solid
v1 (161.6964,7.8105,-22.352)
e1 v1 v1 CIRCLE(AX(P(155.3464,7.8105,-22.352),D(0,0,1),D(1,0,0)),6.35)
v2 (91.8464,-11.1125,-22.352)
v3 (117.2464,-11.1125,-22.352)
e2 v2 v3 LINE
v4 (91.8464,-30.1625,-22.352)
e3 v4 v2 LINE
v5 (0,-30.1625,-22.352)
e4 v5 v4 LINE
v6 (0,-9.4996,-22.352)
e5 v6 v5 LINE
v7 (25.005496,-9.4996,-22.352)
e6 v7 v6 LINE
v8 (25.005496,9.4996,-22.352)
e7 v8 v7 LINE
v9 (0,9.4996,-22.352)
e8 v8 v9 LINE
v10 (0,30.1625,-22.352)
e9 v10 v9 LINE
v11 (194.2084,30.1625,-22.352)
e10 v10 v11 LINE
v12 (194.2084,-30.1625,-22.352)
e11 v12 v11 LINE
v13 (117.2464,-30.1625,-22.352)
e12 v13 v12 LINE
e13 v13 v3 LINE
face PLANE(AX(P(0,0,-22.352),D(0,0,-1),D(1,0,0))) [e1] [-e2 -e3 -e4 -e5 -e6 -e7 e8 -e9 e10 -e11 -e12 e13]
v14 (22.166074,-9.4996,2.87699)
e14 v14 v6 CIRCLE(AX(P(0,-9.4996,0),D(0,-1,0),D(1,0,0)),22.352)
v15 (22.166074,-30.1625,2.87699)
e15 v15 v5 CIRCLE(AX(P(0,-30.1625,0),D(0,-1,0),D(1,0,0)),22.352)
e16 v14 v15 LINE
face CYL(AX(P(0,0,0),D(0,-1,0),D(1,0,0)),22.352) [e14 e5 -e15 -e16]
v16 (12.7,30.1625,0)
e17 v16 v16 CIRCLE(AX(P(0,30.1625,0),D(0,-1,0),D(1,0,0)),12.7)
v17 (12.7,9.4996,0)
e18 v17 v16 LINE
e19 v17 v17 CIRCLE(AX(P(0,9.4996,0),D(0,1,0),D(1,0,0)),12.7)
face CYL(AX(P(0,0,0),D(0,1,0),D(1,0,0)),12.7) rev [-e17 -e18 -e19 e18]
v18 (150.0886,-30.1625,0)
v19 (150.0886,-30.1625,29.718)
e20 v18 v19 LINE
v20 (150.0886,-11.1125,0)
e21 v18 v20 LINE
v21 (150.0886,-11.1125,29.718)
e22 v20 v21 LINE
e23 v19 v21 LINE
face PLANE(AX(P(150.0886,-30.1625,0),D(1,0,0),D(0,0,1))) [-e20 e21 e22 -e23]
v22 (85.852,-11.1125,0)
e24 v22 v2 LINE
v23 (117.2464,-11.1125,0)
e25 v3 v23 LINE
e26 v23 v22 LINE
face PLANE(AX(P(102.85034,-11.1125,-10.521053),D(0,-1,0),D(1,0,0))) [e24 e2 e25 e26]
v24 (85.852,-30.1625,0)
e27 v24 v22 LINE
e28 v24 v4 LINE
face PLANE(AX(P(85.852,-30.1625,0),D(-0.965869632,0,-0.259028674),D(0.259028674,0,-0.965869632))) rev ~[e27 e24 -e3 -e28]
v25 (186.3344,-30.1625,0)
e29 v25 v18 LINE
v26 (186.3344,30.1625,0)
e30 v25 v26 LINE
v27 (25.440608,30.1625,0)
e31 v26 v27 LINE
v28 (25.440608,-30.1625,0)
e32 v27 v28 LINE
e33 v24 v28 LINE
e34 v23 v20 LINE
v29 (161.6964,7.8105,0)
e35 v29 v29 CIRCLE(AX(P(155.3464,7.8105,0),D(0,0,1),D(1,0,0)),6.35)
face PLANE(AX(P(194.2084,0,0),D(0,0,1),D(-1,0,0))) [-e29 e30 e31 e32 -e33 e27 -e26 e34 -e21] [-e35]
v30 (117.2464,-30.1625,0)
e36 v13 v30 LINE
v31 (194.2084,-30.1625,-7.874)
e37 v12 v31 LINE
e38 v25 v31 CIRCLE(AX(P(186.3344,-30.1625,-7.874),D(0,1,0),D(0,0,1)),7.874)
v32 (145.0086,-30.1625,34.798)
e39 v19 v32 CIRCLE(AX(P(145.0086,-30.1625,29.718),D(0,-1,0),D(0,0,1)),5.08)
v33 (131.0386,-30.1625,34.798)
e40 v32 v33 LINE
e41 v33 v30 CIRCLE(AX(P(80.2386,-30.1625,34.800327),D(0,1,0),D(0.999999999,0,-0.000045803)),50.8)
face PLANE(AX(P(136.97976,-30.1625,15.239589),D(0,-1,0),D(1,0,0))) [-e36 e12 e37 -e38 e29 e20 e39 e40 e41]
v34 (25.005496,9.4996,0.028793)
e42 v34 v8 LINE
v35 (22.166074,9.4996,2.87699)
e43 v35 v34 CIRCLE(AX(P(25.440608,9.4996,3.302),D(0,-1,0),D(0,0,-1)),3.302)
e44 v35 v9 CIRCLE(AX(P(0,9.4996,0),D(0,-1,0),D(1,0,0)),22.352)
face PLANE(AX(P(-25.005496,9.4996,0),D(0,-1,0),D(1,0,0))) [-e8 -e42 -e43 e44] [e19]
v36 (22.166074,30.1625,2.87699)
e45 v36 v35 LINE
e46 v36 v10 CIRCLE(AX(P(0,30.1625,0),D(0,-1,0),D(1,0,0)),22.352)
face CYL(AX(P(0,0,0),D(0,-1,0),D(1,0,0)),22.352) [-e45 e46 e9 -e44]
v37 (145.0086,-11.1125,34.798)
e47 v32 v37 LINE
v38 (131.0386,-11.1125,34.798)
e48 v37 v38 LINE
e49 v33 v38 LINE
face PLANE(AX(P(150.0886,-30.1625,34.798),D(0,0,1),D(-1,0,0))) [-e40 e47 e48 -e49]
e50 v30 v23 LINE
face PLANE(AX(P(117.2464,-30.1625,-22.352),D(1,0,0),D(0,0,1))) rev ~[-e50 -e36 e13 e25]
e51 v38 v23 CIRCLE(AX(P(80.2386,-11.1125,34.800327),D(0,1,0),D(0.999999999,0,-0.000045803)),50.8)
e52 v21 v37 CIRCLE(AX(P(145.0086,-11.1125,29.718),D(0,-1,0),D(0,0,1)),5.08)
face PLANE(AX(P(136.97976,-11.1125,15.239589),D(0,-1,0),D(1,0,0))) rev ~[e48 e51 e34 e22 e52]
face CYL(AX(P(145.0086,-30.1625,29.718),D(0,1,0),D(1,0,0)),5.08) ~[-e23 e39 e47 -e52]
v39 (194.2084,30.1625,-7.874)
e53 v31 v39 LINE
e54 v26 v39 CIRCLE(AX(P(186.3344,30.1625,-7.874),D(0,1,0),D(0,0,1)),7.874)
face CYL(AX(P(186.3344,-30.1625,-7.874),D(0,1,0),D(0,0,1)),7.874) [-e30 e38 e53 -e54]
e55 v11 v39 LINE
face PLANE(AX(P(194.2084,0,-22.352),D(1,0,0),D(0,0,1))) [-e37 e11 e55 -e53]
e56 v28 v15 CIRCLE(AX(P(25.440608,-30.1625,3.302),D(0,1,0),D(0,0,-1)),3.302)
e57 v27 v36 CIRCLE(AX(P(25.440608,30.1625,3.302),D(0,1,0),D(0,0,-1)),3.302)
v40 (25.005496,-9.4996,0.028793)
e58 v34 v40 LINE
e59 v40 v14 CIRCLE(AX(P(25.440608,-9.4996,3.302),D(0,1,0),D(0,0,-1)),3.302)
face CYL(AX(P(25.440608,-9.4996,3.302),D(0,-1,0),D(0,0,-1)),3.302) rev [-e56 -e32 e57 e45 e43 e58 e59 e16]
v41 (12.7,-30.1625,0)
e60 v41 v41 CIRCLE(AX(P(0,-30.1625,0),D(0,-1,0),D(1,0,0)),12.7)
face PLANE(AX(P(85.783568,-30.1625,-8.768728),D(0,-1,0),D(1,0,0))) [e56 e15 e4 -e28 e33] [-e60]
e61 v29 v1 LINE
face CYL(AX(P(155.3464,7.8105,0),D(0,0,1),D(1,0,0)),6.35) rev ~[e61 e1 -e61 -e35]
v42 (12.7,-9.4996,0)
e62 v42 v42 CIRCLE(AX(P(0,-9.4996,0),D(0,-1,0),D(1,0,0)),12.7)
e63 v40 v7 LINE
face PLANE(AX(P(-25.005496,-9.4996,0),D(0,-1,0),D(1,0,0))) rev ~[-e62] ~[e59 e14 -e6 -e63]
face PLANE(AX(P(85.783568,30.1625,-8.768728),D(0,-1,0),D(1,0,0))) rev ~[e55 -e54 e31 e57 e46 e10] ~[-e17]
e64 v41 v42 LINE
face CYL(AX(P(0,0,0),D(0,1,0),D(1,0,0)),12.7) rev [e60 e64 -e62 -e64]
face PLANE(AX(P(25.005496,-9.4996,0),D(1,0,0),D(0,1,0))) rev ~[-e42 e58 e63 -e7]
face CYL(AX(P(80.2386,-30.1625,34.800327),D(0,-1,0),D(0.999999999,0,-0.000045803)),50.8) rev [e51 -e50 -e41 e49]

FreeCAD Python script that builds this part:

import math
import FreeCAD as App
import Part
import Sketcher
Q = App.Units.Quantity


def edges_at(feature, points):
    """Names of the edges that pass closest to the given points."""
    edges = feature.Shape.Edges
    near = lambda p: min(range(len(edges)), key=lambda i: edges[i].distToShape(Part.Vertex(*p))[0])
    return sorted({f"Edge{near(p) + 1}" for p in points})


def add_polygon(sketch, points):
    """Adds a closed chain of lines whose ends are joined by coincident constraints."""
    first, n = sketch.GeometryCount, len(points)
    for a, b in zip(points, points[1:] + points[:1]):
        sketch.addGeometry(Part.LineSegment(App.Vector(*a, 0), App.Vector(*b, 0)), False)
    for i in range(n):
        sketch.addConstraint(Sketcher.Constraint("Coincident", first + i, 2, first + (i + 1) % n, 1))

doc = App.newDocument("Part")
params = doc.addObject("Spreadsheet::Sheet", "Params")
for row, (alias, value) in enumerate([
    ("sketch1_diameter", "1 in"),
    ("sketch1_radius", "0.88 in"),
    ("sketch1_width", "6.766 in"),
    ("pad1_length", "2.375 in"),
    ("sketch2_diameter", "0.5 in"),
    ("sketch2_height", "0.748 in"),
    ("sketch3_width", "1 in"),
    ("sketch3_height", "0.88 in"),
    ("sketch3_width2", "1.236 in"),
    ("pocket2_length", "0.75 in"),
    ("sketch4_radius", "2 in"),
    ("sketch4_width", "0.75 in"),
    ("sketch4_height", "1.37 in"),
    ("sketch4_width2", "1.293 in"),
    ("pad2_length", "0.75 in"),
    ("fillet_radius", "0.2 in"),
    ("fillet2_radius", "0.31 in"),
    ("fillet3_radius", "0.13 in"),
], start=1):
    params.set(f"A{row}", alias)
    params.set(f"B{row}", "=" + value)
    params.setAlias(f"B{row}", alias)

body = doc.addObject("PartDesign::Body", "Body")

sketch1 = body.newObject("Sketcher::SketchObject", "Sketch")
sketch1.AttachmentSupport = (doc.getObject("XZ_Plane"), [""])
sketch1.MapMode = "FlatFace"
sketch1.addGeometry(Part.LineSegment(App.Vector(194, 0, 0), App.Vector(22, 0, 0)), False)
sketch1.addGeometry(Part.ArcOfCircle(Part.Circle(App.Vector(0, 0, 0), App.Vector(0, 0, 1), 22), math.radians(0), math.radians(270)), False)
sketch1.addGeometry(Part.LineSegment(App.Vector(0, -22, 0), App.Vector(194, -22, 0)), False)
sketch1.addGeometry(Part.LineSegment(App.Vector(194, -22, 0), App.Vector(194, 0, 0)), False)
sketch1.addGeometry(Part.Circle(App.Vector(0, 0, 0), App.Vector(0, 0, 1), 13), False)
sketch1.addConstraint(Sketcher.Constraint("Coincident", 0, 2, 1, 1))
sketch1.addConstraint(Sketcher.Constraint("Tangent", 1, 2, 2, 1))
sketch1.addConstraint(Sketcher.Constraint("Coincident", 2, 2, 3, 1))
sketch1.addConstraint(Sketcher.Constraint("Coincident", 3, 2, 0, 1))
sketch1.addConstraint(Sketcher.Constraint("Horizontal", 0))
sketch1.addConstraint(Sketcher.Constraint("Horizontal", 2))
sketch1.addConstraint(Sketcher.Constraint("Vertical", 3))
sketch1.addConstraint(Sketcher.Constraint("Coincident", 1, 3, -1, 1))
sketch1.addConstraint(Sketcher.Constraint("Coincident", 4, 3, -1, 1))
sketch1.addConstraint(Sketcher.Constraint("PointOnObject", 0, 2, -1))
sketch1.addConstraint(Sketcher.Constraint("Diameter", 4, Q("1 in")))
sketch1.addConstraint(Sketcher.Constraint("Radius", 1, Q("0.88 in")))
sketch1.addConstraint(Sketcher.Constraint("DistanceX", 0, 2, 0, 1, Q("6.766 in")))
sketch1.setExpression("Constraints[10]", "Params.sketch1_diameter")
sketch1.setExpression("Constraints[11]", "Params.sketch1_radius")
sketch1.setExpression("Constraints[12]", "Params.sketch1_width")
pad1 = body.newObject("PartDesign::Pad", "Pad")
pad1.Profile = sketch1
pad1.setExpression("Length", "Params.pad1_length")
pad1.Midplane = True

sketch2 = body.newObject("Sketcher::SketchObject", "Sketch001")
sketch2.AttachmentSupport = (doc.getObject("XY_Plane"), [""])
sketch2.MapMode = "FlatFace"
sketch2.addGeometry(Part.Circle(App.Vector(155, 8, 0), App.Vector(0, 0, 1), 6), False)
add_polygon(sketch2, [(-25, 9), (-25, -9), (25, -9), (25, 9)])
sketch2.addConstraint(Sketcher.Constraint("Vertical", 1))
sketch2.addConstraint(Sketcher.Constraint("Horizontal", 2))
sketch2.addConstraint(Sketcher.Constraint("Vertical", 3))
sketch2.addConstraint(Sketcher.Constraint("Horizontal", 4))
sketch2.addConstraint(Sketcher.Constraint("Symmetric", 1, 2, 3, 2, -1, 1))
sketch2.addConstraint(Sketcher.Constraint("Diameter", 0, Q("0.5 in")))
sketch2.addConstraint(Sketcher.Constraint("DistanceY", 1, 2, 1, 1, Q("0.748 in")))
sketch2.addConstraint(Sketcher.Constraint("DistanceX", -1, 1, 0, 3, Q("6.116 in")))
sketch2.addConstraint(Sketcher.Constraint("DistanceY", -1, 1, 0, 3, Q("0.3075 in")))
sketch2.addConstraint(Sketcher.Constraint("DistanceX", 2, 1, 2, 2, 50.010992))
sketch2.setExpression("Constraints[9]", "Params.sketch2_diameter")
sketch2.setExpression("Constraints[10]", "Params.sketch2_height")
pocket1 = body.newObject("PartDesign::Pocket", "Pocket")
pocket1.Profile = sketch2
pocket1.Type = "ThroughAll"
pocket1.Midplane = True

sketch3 = body.newObject("Sketcher::SketchObject", "Sketch002")
sketch3.AttachmentSupport = (doc.getObject("XZ_Plane"), [""])
sketch3.MapMode = "FlatFace"
sketch3.AttachmentOffset = App.Placement(App.Vector(0, 0, 1.1875 * 25.4), App.Rotation())
add_polygon(sketch3, [(117, -22), (117, 0), (86, 0), (92, -22)])
sketch3.addConstraint(Sketcher.Constraint("Vertical", 0))
sketch3.addConstraint(Sketcher.Constraint("Horizontal", 1))
sketch3.addConstraint(Sketcher.Constraint("Horizontal", 3))
sketch3.addConstraint(Sketcher.Constraint("PointOnObject", 0, 2, -1))
sketch3.addConstraint(Sketcher.Constraint("DistanceX", 3, 1, 3, 2, Q("1 in")))
sketch3.addConstraint(Sketcher.Constraint("DistanceY", 0, 1, 0, 2, Q("0.88 in")))
sketch3.addConstraint(Sketcher.Constraint("DistanceX", 1, 2, 1, 1, Q("1.236 in")))
sketch3.addConstraint(Sketcher.Constraint("DistanceX", -1, 1, 1, 2, Q("3.38 in")))
sketch3.setExpression("Constraints[8]", "Params.sketch3_width")
sketch3.setExpression("Constraints[9]", "Params.sketch3_height")
sketch3.setExpression("Constraints[10]", "Params.sketch3_width2")
pocket2 = body.newObject("PartDesign::Pocket", "Pocket001")
pocket2.Profile = sketch3
pocket2.setExpression("Length", "Params.pocket2_length")

sketch4 = body.newObject("Sketcher::SketchObject", "Sketch003")
sketch4.AttachmentSupport = (doc.getObject("XZ_Plane"), [""])
sketch4.MapMode = "FlatFace"
sketch4.AttachmentOffset = App.Placement(App.Vector(0, 0, 1.1875 * 25.4), App.Rotation())
sketch4.addGeometry(Part.LineSegment(App.Vector(117, 0, 0), App.Vector(150, 0, 0)), False)
sketch4.addGeometry(Part.LineSegment(App.Vector(150, 0, 0), App.Vector(150, 35, 0)), False)
sketch4.addGeometry(Part.LineSegment(App.Vector(150, 35, 0), App.Vector(131, 35, 0)), False)
sketch4.addGeometry(Part.ArcOfCircle(Part.Circle(App.Vector(80, 35, 0), App.Vector(0, 0, 1), 51), math.radians(-43), math.radians(0)), False)
sketch4.addConstraint(Sketcher.Constraint("Coincident", 0, 2, 1, 1))
sketch4.addConstraint(Sketcher.Constraint("Coincident", 1, 2, 2, 1))
sketch4.addConstraint(Sketcher.Constraint("Coincident", 2, 2, 3, 2))
sketch4.addConstraint(Sketcher.Constraint("Coincident", 3, 1, 0, 1))
sketch4.addConstraint(Sketcher.Constraint("Horizontal", 0))
sketch4.addConstraint(Sketcher.Constraint("Vertical", 1))
sketch4.addConstraint(Sketcher.Constraint("Horizontal", 2))
sketch4.addConstraint(Sketcher.Constraint("PointOnObject", 0, 2, -1))
sketch4.addConstraint(Sketcher.Constraint("Radius", 3, Q("2 in")))
sketch4.addConstraint(Sketcher.Constraint("DistanceX", 2, 2, 2, 1, Q("0.75 in")))
sketch4.addConstraint(Sketcher.Constraint("DistanceY", 1, 1, 1, 2, Q("1.37 in")))
sketch4.addConstraint(Sketcher.Constraint("DistanceX", 0, 1, 0, 2, Q("1.293 in")))
sketch4.addConstraint(Sketcher.Constraint("DistanceX", -1, 1, 3, 3, Q("3.159 in")))
sketch4.setExpression("Constraints[8]", "Params.sketch4_radius")
sketch4.setExpression("Constraints[9]", "Params.sketch4_width")
sketch4.setExpression("Constraints[10]", "Params.sketch4_height")
sketch4.setExpression("Constraints[11]", "Params.sketch4_width2")
pad2 = body.newObject("PartDesign::Pad", "Pad001")
pad2.Profile = sketch4
pad2.setExpression("Length", "Params.pad2_length")
pad2.Reversed = True
doc.recompute()

fillet = body.newObject("PartDesign::Fillet", "Fillet")
fillet.Base = (pad2, edges_at(pad2, [(150.089, -20.637, 34.798)]))
fillet.setExpression("Radius", "Params.fillet_radius")
doc.recompute()

fillet2 = body.newObject("PartDesign::Fillet", "Fillet001")
fillet2.Base = (fillet, edges_at(fillet, [(194.208, 0, 0)]))
fillet2.setExpression("Radius", "Params.fillet2_radius")
doc.recompute()

fillet3 = body.newObject("PartDesign::Fillet", "Fillet002")
fillet3.Base = (fillet2, edges_at(fillet2, [(22.352, -19.831, 0)]))
fillet3.setExpression("Radius", "Params.fillet3_radius")

doc.recompute()
